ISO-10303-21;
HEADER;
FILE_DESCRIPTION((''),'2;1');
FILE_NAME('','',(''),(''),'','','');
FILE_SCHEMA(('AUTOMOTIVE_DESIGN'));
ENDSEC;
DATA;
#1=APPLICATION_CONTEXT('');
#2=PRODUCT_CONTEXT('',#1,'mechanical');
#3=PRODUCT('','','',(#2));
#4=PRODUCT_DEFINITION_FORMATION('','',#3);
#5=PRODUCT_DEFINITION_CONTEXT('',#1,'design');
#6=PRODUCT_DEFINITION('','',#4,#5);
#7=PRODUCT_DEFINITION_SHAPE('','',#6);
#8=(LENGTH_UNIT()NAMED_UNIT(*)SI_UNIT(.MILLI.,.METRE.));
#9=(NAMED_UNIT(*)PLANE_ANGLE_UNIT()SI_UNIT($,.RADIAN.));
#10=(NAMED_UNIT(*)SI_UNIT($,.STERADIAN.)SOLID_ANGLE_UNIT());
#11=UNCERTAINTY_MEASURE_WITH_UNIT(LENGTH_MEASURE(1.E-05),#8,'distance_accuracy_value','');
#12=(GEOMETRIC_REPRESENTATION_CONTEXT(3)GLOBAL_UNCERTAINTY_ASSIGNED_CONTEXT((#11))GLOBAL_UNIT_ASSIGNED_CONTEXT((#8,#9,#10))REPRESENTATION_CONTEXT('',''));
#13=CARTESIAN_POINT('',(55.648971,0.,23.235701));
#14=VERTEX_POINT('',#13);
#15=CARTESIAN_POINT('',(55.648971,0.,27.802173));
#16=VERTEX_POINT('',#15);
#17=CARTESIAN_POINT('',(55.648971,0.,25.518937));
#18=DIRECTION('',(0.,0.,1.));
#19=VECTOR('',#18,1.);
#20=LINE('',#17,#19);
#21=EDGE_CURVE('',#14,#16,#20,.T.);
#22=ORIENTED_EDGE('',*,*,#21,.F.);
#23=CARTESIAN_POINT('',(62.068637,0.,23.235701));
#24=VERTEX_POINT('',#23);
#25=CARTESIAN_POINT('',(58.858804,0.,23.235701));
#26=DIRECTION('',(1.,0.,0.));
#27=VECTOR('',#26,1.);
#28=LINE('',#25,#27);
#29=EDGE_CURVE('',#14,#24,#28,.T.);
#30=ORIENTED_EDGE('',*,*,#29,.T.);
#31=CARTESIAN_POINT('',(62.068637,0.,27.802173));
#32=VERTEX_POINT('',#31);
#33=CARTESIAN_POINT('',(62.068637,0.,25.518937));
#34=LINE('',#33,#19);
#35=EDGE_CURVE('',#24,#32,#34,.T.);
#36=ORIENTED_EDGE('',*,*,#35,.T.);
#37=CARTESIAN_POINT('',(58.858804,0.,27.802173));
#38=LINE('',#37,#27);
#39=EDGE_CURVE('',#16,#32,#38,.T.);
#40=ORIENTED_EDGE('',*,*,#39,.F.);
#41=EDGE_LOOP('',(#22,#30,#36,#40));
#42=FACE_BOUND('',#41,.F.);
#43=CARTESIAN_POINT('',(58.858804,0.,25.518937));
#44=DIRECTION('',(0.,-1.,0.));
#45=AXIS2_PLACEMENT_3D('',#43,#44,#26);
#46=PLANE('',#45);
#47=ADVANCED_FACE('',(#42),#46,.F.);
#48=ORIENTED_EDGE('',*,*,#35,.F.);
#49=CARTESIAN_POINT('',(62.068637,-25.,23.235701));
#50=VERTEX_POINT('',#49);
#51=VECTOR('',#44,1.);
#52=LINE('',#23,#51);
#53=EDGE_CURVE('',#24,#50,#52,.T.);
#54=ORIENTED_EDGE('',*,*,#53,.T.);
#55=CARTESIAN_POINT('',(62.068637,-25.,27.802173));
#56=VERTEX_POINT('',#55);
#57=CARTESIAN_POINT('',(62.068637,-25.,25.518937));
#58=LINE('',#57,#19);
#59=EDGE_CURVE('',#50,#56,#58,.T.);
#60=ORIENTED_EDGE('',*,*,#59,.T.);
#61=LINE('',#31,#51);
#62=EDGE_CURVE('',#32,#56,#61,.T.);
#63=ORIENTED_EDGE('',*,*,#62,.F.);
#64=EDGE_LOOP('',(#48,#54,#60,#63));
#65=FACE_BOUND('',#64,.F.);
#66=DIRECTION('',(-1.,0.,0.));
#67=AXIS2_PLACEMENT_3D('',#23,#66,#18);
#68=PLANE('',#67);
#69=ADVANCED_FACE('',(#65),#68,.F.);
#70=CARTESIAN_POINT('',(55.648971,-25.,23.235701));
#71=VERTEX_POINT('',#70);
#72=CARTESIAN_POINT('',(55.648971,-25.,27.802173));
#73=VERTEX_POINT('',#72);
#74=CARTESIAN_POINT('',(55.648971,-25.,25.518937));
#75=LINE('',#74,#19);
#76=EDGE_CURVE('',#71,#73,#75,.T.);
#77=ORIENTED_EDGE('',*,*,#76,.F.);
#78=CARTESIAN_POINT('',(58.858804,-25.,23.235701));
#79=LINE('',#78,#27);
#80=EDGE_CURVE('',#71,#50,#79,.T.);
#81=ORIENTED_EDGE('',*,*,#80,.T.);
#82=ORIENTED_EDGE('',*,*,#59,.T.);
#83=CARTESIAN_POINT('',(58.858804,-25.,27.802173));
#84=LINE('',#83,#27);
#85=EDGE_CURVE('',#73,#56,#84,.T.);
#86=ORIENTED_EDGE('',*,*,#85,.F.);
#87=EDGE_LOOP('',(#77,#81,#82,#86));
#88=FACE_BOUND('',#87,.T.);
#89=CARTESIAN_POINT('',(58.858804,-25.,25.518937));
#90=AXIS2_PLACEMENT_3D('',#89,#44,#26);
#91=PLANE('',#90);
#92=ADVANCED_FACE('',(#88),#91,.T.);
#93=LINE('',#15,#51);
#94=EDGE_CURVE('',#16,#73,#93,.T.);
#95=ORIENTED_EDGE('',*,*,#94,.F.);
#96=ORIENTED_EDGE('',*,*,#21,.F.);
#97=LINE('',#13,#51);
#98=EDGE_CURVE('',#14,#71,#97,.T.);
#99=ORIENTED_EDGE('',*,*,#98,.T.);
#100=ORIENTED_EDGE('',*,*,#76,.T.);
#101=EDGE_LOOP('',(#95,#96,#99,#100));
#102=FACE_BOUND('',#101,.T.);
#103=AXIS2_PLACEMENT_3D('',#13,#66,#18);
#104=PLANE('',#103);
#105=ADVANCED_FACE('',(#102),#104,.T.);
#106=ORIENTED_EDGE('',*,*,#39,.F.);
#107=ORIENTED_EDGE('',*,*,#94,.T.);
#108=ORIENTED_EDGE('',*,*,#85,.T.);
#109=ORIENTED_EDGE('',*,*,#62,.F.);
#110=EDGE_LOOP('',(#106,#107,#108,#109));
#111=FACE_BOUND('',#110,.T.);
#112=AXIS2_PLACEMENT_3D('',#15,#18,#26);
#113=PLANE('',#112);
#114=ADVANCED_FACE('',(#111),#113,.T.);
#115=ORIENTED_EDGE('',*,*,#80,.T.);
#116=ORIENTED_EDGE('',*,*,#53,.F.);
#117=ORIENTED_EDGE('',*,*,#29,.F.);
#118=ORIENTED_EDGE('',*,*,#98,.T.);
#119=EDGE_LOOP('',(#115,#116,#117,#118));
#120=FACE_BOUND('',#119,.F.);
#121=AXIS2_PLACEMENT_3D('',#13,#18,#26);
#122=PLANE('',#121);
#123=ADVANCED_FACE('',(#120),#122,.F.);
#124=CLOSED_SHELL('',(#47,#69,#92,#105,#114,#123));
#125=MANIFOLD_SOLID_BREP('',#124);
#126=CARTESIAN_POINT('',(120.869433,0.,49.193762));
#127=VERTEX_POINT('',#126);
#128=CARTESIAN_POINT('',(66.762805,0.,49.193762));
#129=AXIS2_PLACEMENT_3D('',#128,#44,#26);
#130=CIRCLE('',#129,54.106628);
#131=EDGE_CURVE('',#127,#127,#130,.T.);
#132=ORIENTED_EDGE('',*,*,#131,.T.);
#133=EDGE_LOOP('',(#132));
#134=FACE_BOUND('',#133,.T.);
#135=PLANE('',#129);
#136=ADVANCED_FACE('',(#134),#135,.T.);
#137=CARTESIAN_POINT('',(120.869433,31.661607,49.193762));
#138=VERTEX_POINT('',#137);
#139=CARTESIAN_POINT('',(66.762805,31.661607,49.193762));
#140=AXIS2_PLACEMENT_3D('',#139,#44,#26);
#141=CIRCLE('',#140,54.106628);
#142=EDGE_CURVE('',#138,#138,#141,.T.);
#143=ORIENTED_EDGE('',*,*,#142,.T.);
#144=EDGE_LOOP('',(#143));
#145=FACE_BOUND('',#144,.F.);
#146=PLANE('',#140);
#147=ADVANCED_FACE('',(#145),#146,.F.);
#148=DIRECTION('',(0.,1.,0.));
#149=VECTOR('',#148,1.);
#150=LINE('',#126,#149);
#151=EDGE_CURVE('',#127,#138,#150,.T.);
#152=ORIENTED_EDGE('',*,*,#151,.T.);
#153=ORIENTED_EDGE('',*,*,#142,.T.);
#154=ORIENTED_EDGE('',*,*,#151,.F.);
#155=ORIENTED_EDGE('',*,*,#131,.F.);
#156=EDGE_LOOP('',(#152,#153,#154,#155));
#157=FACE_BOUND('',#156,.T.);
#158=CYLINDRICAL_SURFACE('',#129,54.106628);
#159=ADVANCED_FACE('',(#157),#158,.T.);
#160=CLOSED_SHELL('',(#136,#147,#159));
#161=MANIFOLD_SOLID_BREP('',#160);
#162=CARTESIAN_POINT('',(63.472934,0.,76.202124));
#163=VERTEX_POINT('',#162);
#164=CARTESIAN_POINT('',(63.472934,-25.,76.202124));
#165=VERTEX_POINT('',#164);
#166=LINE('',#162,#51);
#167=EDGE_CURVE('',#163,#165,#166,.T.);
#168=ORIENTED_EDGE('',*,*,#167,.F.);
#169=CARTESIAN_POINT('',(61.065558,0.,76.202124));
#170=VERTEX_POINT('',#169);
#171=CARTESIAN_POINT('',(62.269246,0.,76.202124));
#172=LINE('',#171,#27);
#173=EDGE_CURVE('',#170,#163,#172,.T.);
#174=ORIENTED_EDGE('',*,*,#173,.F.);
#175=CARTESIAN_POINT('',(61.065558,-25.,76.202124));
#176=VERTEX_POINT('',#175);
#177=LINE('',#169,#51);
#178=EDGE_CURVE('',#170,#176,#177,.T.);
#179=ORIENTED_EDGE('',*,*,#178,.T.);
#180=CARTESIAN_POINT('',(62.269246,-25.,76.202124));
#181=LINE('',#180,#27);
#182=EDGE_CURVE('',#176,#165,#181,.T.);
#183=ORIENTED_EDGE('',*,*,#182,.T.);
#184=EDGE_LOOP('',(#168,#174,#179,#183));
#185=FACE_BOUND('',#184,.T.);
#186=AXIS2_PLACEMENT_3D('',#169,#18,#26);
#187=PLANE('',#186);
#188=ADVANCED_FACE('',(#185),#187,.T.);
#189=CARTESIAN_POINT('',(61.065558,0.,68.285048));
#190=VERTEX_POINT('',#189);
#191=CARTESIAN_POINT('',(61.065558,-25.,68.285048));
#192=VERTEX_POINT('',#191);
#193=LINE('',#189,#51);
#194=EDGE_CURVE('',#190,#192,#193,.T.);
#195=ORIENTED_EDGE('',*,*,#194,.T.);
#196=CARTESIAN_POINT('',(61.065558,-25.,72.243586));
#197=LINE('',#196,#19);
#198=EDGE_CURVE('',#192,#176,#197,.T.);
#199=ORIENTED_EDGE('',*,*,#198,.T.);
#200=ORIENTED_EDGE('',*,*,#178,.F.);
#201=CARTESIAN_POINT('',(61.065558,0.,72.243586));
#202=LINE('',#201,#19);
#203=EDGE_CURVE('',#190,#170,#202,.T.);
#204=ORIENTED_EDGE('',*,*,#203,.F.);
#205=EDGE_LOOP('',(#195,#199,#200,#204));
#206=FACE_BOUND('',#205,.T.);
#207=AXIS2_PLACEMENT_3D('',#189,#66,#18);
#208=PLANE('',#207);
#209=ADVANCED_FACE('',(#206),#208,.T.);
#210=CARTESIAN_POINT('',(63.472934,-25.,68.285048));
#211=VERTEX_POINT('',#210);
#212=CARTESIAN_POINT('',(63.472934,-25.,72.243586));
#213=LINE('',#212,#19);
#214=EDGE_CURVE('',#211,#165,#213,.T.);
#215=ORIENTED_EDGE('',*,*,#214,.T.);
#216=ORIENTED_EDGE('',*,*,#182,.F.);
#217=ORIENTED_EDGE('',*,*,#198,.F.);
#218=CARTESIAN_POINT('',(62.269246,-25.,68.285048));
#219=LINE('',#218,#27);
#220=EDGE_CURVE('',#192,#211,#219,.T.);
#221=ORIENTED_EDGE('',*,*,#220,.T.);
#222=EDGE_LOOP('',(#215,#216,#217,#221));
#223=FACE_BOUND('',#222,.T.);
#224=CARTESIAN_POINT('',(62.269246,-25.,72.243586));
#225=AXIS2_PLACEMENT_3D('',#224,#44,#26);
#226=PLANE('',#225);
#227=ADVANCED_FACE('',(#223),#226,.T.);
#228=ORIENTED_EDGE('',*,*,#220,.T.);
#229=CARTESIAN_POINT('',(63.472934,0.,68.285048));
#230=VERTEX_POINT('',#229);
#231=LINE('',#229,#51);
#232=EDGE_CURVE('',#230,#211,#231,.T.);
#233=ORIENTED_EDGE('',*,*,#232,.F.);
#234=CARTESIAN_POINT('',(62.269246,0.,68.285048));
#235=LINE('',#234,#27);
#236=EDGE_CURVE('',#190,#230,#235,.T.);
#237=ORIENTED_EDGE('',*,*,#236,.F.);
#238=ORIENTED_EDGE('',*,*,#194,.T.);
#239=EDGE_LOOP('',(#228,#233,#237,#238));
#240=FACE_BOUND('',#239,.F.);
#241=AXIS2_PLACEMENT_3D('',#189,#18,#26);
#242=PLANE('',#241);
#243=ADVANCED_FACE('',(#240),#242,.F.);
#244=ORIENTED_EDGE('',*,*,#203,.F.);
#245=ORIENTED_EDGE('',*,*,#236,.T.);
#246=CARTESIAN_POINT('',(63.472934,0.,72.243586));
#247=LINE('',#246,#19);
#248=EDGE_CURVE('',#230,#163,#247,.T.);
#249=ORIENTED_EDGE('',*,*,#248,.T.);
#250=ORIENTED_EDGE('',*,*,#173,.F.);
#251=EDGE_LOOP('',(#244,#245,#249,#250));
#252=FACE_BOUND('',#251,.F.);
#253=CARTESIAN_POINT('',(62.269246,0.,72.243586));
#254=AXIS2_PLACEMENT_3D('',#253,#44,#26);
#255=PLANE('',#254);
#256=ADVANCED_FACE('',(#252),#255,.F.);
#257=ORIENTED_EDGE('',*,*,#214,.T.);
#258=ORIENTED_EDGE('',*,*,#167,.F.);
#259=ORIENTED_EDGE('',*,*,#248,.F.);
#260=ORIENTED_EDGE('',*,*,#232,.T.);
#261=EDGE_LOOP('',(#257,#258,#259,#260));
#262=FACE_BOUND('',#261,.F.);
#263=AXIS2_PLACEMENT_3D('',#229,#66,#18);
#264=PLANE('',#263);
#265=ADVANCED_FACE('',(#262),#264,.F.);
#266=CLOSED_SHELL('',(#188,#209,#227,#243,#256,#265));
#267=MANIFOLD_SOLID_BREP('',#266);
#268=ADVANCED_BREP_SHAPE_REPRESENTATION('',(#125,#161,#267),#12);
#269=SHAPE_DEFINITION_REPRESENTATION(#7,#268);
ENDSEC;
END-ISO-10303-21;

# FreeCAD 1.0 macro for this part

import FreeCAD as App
import Part
import Sketcher
from FreeCAD import Vector


def add_polygon(sketch, points):
    """Adds a closed chain of lines whose ends are joined by coincident constraints."""
    first, n = sketch.GeometryCount, len(points)
    for a, b in zip(points, points[1:] + points[:1]):
        sketch.addGeometry(Part.LineSegment(App.Vector(*a, 0), App.Vector(*b, 0)), False)
    for i in range(n):
        sketch.addConstraint(Sketcher.Constraint("Coincident", first + i, 2, first + (i + 1) % n, 1))

doc = App.newDocument("Part")
body = doc.addObject("PartDesign::Body", "Body")
body.AllowCompound = True

sketch1 = doc.addObject("Sketcher::SketchObject", "Sketch")
body.addObject(sketch1)
sketch1.AttachmentSupport = (doc.XZ_Plane, [""])
sketch1.MapMode = "FlatFace"
add_polygon(sketch1, [(55.6, 27.8), (55.6, 23.2), (62.1, 23.2), (62.1, 27.8)])
add_polygon(sketch1, [(61.1, 76.2), (61.1, 68.3), (63.5, 68.3), (63.5, 76.2)])
sketch1.addConstraint([
    Sketcher.Constraint("Vertical", 0),
    Sketcher.Constraint("Horizontal", 1),
    Sketcher.Constraint("Vertical", 2),
    Sketcher.Constraint("Horizontal", 3),
    Sketcher.Constraint("Vertical", 4),
    Sketcher.Constraint("Horizontal", 5),
    Sketcher.Constraint("Vertical", 6),
    Sketcher.Constraint("Horizontal", 7),
    Sketcher.Constraint("DistanceY", -1, 1, 0, 2, 23.235701),
    Sketcher.Constraint("DistanceX", 1, 1, 1, 2, 6.419666),
    Sketcher.Constraint("DistanceX", 5, 1, 5, 2, 2.407376),
    Sketcher.Constraint("DistanceY", 0, 2, 0, 1, 4.566472),
    Sketcher.Constraint("DistanceY", 4, 2, 4, 1, 7.917076),
    Sketcher.Constraint("DistanceX", -1, 1, 0, 2, 55.648971),
    Sketcher.Constraint("DistanceX", -1, 1, 4, 2, 61.065558),
    Sketcher.Constraint("DistanceY", -1, 1, 4, 2, 68.285048),
])
pad1 = doc.addObject("PartDesign::Pad", "Pad")
body.addObject(pad1)
pad1.Profile = sketch1
pad1.Length = 25
body2 = doc.addObject("PartDesign::Body", "Body001")

sketch2 = doc.addObject("Sketcher::SketchObject", "Sketch001")
body2.addObject(sketch2)
sketch2.AttachmentSupport = (doc.getObject("XZ_Plane001"), [""])
sketch2.MapMode = "FlatFace"
sketch2.addGeometry(Part.Circle(Vector(67, 49, 0), Vector(0, 0, 1), 54), False)
sketch2.addConstraint([
    Sketcher.Constraint("Diameter", 0, 108.213256),
    Sketcher.Constraint("DistanceX", -1, 1, 0, 3, 66.762805),
    Sketcher.Constraint("DistanceY", -1, 1, 0, 3, 49.193762),
])
pad2 = doc.addObject("PartDesign::Pad", "Pad001")
body2.addObject(pad2)
pad2.Profile = sketch2
pad2.Length = 31.661607
pad2.Reversed = True

doc.recompute()
